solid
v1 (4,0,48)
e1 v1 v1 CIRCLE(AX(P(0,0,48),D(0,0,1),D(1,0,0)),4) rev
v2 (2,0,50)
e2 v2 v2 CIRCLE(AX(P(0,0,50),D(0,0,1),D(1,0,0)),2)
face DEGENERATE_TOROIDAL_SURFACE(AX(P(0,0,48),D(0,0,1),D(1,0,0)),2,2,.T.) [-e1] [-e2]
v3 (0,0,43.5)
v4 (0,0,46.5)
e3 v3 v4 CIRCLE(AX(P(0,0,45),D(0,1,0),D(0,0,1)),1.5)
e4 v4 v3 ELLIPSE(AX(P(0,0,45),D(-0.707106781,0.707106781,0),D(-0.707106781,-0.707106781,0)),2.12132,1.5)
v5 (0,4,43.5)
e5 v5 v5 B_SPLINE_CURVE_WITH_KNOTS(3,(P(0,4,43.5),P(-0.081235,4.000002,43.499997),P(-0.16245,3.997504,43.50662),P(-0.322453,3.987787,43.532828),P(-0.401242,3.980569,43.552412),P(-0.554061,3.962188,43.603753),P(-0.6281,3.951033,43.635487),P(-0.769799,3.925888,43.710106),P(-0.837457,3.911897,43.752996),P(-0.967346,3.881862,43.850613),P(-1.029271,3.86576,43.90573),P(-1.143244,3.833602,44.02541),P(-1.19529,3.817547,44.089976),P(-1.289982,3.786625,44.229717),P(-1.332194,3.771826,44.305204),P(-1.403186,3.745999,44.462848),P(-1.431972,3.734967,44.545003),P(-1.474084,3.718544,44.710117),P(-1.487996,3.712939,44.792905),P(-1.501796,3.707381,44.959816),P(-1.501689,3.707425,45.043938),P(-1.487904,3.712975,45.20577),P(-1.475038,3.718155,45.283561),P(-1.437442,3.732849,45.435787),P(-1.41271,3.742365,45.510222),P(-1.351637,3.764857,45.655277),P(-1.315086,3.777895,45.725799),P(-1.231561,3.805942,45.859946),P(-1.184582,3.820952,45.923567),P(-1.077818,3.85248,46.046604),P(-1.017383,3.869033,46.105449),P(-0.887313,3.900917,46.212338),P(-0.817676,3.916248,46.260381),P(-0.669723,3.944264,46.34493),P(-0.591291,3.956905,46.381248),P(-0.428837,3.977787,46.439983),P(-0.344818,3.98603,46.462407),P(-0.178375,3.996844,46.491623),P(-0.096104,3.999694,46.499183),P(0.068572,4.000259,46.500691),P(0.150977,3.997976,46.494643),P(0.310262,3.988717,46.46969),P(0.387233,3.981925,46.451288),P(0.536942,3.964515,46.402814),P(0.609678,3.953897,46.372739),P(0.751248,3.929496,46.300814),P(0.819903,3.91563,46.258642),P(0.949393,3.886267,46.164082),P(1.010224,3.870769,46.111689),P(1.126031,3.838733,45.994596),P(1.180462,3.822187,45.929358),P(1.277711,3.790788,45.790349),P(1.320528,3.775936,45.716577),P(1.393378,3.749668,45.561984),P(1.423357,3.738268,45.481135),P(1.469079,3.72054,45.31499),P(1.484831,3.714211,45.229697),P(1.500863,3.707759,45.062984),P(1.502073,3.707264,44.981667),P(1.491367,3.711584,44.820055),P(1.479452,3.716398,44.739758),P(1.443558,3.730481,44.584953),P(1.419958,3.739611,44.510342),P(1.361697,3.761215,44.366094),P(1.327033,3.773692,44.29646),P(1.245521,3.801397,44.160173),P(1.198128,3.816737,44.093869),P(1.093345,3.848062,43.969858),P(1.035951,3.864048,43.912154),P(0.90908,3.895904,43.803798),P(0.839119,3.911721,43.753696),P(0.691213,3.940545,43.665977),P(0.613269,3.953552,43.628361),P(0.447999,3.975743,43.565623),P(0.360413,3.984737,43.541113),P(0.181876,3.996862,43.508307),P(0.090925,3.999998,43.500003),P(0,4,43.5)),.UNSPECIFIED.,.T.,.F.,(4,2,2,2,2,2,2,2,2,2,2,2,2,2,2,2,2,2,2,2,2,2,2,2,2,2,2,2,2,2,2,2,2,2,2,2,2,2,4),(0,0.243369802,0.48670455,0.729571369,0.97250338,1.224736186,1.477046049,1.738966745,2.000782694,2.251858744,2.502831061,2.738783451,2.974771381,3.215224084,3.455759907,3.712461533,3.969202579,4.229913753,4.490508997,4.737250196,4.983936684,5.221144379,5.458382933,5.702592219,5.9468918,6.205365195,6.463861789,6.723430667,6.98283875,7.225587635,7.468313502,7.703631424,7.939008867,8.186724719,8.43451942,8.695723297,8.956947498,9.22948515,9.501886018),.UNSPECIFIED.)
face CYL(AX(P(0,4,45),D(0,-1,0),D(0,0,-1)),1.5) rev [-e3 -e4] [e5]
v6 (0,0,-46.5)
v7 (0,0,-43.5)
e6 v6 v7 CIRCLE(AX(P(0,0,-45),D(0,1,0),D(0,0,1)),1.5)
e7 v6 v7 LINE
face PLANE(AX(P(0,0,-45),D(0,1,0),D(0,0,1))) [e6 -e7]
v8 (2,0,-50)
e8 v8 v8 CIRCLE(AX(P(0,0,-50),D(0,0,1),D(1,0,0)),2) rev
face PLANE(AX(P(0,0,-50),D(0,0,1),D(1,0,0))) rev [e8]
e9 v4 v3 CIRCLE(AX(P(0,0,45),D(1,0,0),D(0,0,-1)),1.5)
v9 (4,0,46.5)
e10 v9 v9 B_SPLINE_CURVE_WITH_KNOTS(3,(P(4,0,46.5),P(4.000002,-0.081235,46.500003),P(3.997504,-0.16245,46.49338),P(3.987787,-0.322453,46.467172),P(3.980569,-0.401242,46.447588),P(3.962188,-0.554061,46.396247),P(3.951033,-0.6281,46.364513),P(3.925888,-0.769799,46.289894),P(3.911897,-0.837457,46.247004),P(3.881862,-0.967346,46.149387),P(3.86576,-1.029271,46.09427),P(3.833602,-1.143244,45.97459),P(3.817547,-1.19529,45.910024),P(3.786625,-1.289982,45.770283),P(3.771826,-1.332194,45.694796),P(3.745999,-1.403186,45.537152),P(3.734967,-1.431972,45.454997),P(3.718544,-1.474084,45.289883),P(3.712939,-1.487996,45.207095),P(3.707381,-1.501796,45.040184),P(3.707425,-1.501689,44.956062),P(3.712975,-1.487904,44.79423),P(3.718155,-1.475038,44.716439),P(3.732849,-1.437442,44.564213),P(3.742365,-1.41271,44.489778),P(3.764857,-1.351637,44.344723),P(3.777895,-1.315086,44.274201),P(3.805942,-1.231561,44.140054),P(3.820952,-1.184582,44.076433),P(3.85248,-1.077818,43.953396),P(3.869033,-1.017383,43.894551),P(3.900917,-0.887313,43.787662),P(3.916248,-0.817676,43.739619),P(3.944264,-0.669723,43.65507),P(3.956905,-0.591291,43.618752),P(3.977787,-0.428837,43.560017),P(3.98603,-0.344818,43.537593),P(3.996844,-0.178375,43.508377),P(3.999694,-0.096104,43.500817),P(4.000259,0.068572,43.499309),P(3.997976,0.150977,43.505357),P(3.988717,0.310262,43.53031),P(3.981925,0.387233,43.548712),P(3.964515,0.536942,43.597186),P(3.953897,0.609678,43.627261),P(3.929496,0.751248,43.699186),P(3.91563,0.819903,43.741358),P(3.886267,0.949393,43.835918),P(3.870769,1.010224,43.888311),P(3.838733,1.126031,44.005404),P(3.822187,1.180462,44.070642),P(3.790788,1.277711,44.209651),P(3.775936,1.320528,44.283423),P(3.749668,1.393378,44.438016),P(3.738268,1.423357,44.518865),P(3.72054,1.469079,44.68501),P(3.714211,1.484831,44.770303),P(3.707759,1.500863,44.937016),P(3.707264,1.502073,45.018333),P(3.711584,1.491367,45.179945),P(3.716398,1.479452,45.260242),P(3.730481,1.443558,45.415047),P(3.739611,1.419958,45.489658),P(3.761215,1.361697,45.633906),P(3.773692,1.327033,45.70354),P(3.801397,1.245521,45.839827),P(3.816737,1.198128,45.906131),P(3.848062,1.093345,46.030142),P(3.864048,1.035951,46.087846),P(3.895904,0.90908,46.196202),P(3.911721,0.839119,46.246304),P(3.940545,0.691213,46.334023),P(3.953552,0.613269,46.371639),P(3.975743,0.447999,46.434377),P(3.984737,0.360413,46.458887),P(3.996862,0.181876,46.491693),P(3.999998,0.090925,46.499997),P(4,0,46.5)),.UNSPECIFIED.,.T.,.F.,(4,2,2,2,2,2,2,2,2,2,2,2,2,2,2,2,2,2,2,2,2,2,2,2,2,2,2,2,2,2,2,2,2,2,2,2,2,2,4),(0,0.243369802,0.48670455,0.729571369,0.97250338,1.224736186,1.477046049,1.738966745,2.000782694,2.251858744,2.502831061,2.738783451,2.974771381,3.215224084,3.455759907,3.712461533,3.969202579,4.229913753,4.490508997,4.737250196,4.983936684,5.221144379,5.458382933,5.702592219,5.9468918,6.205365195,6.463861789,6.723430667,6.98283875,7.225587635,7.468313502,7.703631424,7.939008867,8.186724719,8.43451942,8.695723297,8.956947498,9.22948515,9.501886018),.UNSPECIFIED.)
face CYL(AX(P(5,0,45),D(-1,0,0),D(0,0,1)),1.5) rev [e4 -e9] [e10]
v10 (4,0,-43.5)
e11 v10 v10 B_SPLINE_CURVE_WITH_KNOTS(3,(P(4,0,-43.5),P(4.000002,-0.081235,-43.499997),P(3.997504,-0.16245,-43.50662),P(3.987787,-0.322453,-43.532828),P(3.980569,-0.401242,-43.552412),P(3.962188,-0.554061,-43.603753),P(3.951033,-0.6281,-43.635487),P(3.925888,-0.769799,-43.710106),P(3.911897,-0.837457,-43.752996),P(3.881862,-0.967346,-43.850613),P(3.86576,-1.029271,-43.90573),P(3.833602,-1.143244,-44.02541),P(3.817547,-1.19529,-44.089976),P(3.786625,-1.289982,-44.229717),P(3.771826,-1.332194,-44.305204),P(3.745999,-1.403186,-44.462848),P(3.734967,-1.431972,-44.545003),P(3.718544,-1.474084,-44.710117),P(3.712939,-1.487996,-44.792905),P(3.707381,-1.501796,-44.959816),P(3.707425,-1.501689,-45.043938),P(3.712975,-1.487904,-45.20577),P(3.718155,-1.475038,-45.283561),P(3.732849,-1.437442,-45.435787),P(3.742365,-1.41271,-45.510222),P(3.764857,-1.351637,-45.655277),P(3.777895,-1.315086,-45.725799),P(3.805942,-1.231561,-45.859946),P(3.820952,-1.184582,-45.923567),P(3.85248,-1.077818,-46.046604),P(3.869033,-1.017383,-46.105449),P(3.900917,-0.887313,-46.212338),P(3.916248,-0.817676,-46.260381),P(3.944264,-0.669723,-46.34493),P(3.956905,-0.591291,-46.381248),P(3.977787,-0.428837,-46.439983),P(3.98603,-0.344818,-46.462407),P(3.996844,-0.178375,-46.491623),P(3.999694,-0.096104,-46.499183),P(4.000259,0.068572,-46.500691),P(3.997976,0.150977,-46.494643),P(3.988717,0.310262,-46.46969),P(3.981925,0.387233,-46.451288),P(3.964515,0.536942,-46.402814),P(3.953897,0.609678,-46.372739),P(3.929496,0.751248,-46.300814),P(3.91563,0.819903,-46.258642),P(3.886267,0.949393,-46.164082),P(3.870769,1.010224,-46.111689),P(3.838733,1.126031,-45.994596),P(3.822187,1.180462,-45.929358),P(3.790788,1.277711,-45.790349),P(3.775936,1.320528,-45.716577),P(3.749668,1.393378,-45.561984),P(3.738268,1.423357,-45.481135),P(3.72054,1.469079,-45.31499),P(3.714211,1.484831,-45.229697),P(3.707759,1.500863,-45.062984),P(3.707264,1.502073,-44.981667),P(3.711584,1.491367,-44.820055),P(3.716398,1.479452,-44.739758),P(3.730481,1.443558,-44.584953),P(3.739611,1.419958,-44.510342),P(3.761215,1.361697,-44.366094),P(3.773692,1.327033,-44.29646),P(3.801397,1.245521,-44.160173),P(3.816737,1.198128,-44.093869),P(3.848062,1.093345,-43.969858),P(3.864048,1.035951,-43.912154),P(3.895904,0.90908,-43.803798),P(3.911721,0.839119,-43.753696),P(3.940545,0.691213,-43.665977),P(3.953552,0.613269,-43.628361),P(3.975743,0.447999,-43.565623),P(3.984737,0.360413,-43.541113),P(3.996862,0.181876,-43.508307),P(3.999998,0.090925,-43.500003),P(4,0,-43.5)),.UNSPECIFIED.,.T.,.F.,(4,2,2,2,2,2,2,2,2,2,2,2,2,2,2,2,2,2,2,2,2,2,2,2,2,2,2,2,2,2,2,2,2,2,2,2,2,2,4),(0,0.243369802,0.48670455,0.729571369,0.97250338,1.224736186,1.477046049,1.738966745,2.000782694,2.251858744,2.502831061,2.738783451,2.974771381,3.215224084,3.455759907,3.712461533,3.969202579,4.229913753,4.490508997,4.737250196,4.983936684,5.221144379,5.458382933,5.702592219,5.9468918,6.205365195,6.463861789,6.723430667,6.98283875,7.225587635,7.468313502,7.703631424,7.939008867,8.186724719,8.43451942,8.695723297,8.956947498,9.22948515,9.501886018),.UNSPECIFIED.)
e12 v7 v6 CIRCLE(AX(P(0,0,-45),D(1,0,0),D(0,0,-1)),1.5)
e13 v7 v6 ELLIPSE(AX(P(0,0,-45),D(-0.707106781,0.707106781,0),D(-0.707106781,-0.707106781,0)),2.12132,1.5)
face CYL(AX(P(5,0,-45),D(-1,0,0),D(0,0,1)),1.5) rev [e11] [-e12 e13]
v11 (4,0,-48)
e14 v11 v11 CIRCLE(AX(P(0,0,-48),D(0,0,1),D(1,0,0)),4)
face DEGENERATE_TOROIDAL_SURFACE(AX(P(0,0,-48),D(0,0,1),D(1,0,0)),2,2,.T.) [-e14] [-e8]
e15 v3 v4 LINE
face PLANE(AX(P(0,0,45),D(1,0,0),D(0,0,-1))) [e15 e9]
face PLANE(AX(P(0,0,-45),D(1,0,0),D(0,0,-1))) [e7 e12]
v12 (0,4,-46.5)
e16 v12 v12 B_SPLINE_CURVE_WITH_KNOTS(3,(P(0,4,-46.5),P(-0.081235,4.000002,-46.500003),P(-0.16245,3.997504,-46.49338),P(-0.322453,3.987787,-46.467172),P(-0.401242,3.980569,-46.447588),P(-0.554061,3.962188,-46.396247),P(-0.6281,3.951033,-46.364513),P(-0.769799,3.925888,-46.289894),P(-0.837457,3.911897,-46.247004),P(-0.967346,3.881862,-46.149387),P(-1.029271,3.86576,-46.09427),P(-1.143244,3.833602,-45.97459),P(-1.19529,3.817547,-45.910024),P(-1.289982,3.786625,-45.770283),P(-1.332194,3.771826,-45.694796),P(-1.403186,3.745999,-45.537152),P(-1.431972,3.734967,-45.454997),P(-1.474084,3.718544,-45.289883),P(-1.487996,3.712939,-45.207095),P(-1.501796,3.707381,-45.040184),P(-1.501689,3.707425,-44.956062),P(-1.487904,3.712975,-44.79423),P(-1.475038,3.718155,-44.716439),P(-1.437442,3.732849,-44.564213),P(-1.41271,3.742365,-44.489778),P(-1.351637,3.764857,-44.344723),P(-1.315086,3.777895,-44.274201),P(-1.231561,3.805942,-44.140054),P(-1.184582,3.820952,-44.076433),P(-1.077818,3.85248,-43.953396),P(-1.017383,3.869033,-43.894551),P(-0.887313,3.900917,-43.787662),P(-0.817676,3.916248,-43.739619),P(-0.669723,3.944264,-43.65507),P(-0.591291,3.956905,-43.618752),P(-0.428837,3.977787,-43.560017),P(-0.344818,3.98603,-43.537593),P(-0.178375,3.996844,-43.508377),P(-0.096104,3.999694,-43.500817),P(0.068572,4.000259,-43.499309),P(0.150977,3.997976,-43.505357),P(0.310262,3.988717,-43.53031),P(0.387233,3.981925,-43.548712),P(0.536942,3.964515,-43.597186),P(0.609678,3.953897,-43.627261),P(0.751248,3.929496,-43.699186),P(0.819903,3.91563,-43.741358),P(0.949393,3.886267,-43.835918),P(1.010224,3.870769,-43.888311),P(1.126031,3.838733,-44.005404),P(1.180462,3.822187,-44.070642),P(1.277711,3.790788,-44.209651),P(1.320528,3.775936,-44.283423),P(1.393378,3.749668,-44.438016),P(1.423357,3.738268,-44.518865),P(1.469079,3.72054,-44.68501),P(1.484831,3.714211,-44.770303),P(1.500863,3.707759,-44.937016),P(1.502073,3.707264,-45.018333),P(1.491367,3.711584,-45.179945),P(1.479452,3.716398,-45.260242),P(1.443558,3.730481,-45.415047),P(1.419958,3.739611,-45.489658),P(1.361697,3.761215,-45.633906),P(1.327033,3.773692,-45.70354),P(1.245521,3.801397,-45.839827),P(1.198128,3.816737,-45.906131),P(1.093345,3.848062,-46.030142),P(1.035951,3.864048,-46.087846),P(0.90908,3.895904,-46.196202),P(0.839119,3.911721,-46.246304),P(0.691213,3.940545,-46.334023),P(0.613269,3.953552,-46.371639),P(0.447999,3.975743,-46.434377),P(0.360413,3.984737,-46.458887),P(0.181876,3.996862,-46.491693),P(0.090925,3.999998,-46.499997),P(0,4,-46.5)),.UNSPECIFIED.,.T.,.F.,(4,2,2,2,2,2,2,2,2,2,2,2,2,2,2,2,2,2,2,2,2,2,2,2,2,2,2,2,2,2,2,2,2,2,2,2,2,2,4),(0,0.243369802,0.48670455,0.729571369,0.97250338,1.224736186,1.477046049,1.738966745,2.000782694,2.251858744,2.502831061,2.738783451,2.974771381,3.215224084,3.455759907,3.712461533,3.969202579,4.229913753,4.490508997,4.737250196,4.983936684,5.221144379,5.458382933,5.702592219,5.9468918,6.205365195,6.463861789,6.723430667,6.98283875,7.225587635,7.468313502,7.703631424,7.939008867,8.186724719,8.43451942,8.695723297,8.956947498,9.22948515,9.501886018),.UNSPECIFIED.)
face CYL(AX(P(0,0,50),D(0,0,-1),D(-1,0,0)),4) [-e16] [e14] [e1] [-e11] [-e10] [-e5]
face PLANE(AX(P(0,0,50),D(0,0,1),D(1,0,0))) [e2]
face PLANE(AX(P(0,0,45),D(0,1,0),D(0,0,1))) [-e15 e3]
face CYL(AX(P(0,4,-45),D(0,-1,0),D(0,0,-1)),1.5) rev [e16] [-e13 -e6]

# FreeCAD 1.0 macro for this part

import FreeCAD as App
import Part
import Sketcher
from FreeCAD import Vector


def edges_at(feature, points):
    """Names of the edges that pass closest to the given points."""
    edges = feature.Shape.Edges
    near = lambda p: min(range(len(edges)), key=lambda i: edges[i].distToShape(Part.Vertex(*p))[0])
    return sorted({f"Edge{near(p) + 1}" for p in points})

doc = App.newDocument("Part")
body = doc.addObject("PartDesign::Body", "Body")

sketch1 = doc.addObject("Sketcher::SketchObject", "Sketch")
body.addObject(sketch1)
sketch1.AttachmentSupport = (doc.XY_Plane, [""])
sketch1.MapMode = "FlatFace"
sketch1.addGeometry(Part.Circle(Vector(0, 0, 0), Vector(0, 0, 1), 4), False)
sketch1.addConstraint([
    Sketcher.Constraint("Coincident", 0, 3, -1, 1),
    Sketcher.Constraint("Diameter", 0, 8.0),
])
pad1 = doc.addObject("PartDesign::Pad", "Pad")
body.addObject(pad1)
pad1.Profile = sketch1
pad1.Length = 100
pad1.Midplane = True

sketch2 = doc.addObject("Sketcher::SketchObject", "Sketch001")
body.addObject(sketch2)
sketch2.AttachmentSupport = (doc.YZ_Plane, [""])
sketch2.MapMode = "FlatFace"
sketch2.addGeometry([
    Part.Circle(Vector(0, 45, 0), Vector(0, 0, 1), 1.5),
    Part.Circle(Vector(0, -45, 0), Vector(0, 0, 1), 1.5),
], False)
sketch2.addConstraint([
    Sketcher.Constraint("Equal", 0, 1),
    Sketcher.Constraint("Symmetric", 0, 3, 1, 3, -1, 1),
    Sketcher.Constraint("PointOnObject", 0, 3, -2),
    Sketcher.Constraint("Diameter", 0, 3.0),
    Sketcher.Constraint("DistanceY", -1, 1, 0, 3, 45.0),
])
pocket1 = doc.addObject("PartDesign::Pocket", "Pocket")
body.addObject(pocket1)
pocket1.Profile = sketch2
pocket1.Length = 5
pocket1.Reversed = True
doc.recompute()

fillet = doc.addObject("PartDesign::Fillet", "Fillet")
body.addObject(fillet)
fillet.Base = (pocket1, edges_at(pocket1, [(-4, 0, -50), (-4, 0, 50)]))
fillet.Radius = 2

sketch3 = doc.addObject("Sketcher::SketchObject", "Sketch002")
body.addObject(sketch3)
sketch3.AttachmentSupport = (doc.XZ_Plane, [""])
sketch3.MapMode = "FlatFace"
sketch3.addGeometry([
    Part.Circle(Vector(0, -45, 0), Vector(0, 0, 1), 1.5),
    Part.Circle(Vector(0, 45, 0), Vector(0, 0, 1), 1.5),
], False)
sketch3.addConstraint([
    Sketcher.Constraint("Equal", 0, 1),
    Sketcher.Constraint("Symmetric", 0, 3, 1, 3, -1, 1),
    Sketcher.Constraint("PointOnObject", 0, 3, -2),
    Sketcher.Constraint("Diameter", 0, 3.0),
    Sketcher.Constraint("DistanceY", 0, 3, -1, 1, 45.0),
])
pocket2 = doc.addObject("PartDesign::Pocket", "Pocket001")
body.addObject(pocket2)
pocket2.Profile = sketch3
pocket2.Length = 4

doc.recompute()
